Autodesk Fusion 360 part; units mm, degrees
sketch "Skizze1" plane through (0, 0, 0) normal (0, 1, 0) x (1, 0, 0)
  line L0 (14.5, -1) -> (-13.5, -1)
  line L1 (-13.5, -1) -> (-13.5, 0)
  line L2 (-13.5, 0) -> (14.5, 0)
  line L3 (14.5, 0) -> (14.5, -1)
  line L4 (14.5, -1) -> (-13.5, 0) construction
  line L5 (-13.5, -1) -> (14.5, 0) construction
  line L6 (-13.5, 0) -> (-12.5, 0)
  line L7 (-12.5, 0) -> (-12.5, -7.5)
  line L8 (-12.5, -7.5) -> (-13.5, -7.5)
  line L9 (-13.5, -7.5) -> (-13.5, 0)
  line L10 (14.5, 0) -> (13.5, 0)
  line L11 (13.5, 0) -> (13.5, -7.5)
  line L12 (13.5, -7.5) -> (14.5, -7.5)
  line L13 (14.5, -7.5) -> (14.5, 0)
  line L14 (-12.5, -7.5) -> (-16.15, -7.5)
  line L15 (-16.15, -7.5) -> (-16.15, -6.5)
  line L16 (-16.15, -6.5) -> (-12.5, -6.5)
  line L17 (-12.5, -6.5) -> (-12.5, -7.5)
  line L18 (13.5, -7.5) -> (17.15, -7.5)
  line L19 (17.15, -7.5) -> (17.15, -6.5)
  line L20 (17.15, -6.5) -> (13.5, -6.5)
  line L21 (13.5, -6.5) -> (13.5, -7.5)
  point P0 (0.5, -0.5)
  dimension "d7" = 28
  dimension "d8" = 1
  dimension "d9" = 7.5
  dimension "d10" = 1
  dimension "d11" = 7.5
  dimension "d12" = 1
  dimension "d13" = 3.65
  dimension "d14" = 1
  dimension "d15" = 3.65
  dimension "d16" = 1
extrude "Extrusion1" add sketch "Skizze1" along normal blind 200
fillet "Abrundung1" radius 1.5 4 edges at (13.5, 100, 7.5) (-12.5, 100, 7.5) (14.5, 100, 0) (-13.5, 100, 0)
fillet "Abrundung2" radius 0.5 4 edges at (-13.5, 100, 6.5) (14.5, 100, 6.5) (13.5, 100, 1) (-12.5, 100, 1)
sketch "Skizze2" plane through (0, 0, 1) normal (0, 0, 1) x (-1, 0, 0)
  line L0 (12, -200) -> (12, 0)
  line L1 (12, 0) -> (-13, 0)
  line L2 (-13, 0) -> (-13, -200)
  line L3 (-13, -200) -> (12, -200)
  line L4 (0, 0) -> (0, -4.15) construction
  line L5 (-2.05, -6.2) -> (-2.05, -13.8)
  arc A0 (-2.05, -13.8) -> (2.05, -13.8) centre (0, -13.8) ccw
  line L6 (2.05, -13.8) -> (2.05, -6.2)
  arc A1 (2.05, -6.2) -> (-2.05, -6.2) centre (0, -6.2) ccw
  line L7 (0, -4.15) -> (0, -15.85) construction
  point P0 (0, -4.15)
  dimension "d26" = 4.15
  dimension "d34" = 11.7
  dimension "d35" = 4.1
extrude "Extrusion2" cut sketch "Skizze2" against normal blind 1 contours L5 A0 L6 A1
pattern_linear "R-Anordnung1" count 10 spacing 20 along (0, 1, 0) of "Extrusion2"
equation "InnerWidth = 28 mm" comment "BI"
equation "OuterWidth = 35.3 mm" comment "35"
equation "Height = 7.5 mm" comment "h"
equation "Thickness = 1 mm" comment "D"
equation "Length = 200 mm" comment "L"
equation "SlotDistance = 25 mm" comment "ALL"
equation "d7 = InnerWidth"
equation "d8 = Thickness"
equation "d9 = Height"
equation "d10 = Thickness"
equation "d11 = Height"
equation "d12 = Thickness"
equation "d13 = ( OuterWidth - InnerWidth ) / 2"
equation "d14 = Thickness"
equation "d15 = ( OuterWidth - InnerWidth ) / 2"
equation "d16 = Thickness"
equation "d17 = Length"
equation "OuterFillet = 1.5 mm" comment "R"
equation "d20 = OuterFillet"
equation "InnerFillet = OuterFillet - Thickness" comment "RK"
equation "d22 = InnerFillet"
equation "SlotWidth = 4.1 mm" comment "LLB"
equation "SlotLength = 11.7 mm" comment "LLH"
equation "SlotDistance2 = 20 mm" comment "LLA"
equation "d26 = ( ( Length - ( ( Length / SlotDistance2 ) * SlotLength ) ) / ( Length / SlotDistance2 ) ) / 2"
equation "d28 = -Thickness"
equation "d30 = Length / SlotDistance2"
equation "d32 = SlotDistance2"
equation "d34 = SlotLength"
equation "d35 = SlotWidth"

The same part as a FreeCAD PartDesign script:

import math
import FreeCAD as App
import Part
import Sketcher
Q = App.Units.Quantity


def edges_at(feature, points):
    """Names of the edges that pass closest to the given points."""
    edges = feature.Shape.Edges
    near = lambda p: min(range(len(edges)), key=lambda i: edges[i].distToShape(Part.Vertex(*p))[0])
    return sorted({f"Edge{near(p) + 1}" for p in points})

doc = App.newDocument("Part")
body = doc.addObject("PartDesign::Body", "Body")

sketch1 = doc.addObject("Sketcher::SketchObject", "Sketch")
body.addObject(sketch1)
sketch1.AttachmentSupport = (doc.XZ_Plane, [""])
sketch1.MapMode = "FlatFace"
sketch1.addGeometry([
    Part.LineSegment(App.Vector(14.5, 6.5, 0), App.Vector(14.5, 0, 0)),
    Part.LineSegment(App.Vector(14.5, 0, 0), App.Vector(-13.5, 0, 0)),
    Part.LineSegment(App.Vector(-13.5, 0, 0), App.Vector(-13.5, 6.5, 0)),
    Part.LineSegment(App.Vector(-13.5, 6.5, 0), App.Vector(-16.1, 6.5, 0)),
    Part.LineSegment(App.Vector(-16.1, 6.5, 0), App.Vector(-16.1, 7.5, 0)),
    Part.LineSegment(App.Vector(-16.1, 7.5, 0), App.Vector(-12.5, 7.5, 0)),
    Part.LineSegment(App.Vector(-12.5, 7.5, 0), App.Vector(-12.5, 1, 0)),
    Part.LineSegment(App.Vector(-12.5, 1, 0), App.Vector(13.5, 1, 0)),
    Part.LineSegment(App.Vector(13.5, 1, 0), App.Vector(13.5, 7.5, 0)),
    Part.LineSegment(App.Vector(13.5, 7.5, 0), App.Vector(17.1, 7.5, 0)),
    Part.LineSegment(App.Vector(17.1, 7.5, 0), App.Vector(17.1, 6.5, 0)),
    Part.LineSegment(App.Vector(17.1, 6.5, 0), App.Vector(14.5, 6.5, 0)),
], False)
sketch1.addConstraint([
    Sketcher.Constraint("Coincident", 0, 2, 1, 1),
    Sketcher.Constraint("Coincident", 1, 2, 2, 1),
    Sketcher.Constraint("Coincident", 2, 2, 3, 1),
    Sketcher.Constraint("Coincident", 3, 2, 4, 1),
    Sketcher.Constraint("Coincident", 4, 2, 5, 1),
    Sketcher.Constraint("Coincident", 5, 2, 6, 1),
    Sketcher.Constraint("Coincident", 6, 2, 7, 1),
    Sketcher.Constraint("Coincident", 7, 2, 8, 1),
    Sketcher.Constraint("Coincident", 8, 2, 9, 1),
    Sketcher.Constraint("Coincident", 9, 2, 10, 1),
    Sketcher.Constraint("Coincident", 10, 2, 11, 1),
    Sketcher.Constraint("Coincident", 11, 2, 0, 1),
    Sketcher.Constraint("Vertical", 0),
    Sketcher.Constraint("Horizontal", 1),
    Sketcher.Constraint("Vertical", 2),
    Sketcher.Constraint("Horizontal", 3),
    Sketcher.Constraint("Vertical", 4),
    Sketcher.Constraint("Horizontal", 5),
    Sketcher.Constraint("Vertical", 6),
    Sketcher.Constraint("Horizontal", 7),
    Sketcher.Constraint("Vertical", 8),
    Sketcher.Constraint("Horizontal", 9),
    Sketcher.Constraint("Vertical", 10),
    Sketcher.Constraint("Horizontal", 11),
    Sketcher.Constraint("PointOnObject", 0, 2, -1),
    Sketcher.Constraint("Horizontal", 5, 2, 8, 2),
    Sketcher.Constraint("Horizontal", 3, 2, 10, 2),
    Sketcher.Constraint("Equal", 5, 9),
    Sketcher.Constraint("Equal", 3, 11),
    Sketcher.Constraint("Equal", 2, 6),
    Sketcher.Constraint("DistanceX", 1, 2, 1, 1, Q("28 mm")),
    Sketcher.Constraint("DistanceY", 4, 1, 4, 2, Q("1 mm")),
    Sketcher.Constraint("DistanceX", 2, 2, 5, 2, Q("1 mm")),
    Sketcher.Constraint("DistanceX", 5, 1, 5, 2, Q("3.65 mm")),
    Sketcher.Constraint("DistanceY", -1, 1, 4, 2, Q("7.5 mm")),
    Sketcher.Constraint("DistanceX", -1, 1, 0, 2, Q("14.5 mm")),
])
pad1 = doc.addObject("PartDesign::Pad", "Pad")
body.addObject(pad1)
pad1.Profile = sketch1
pad1.Length = 200
pad1.Reversed = True
doc.recompute()

fillet = doc.addObject("PartDesign::Fillet", "Fillet")
body.addObject(fillet)
fillet.Base = (pad1, edges_at(pad1, [
    (13.5, 100, 7.5),
    (-12.5, 100, 7.5),
    (14.5, 100, 0),
    (-13.5, 100, 0),
]))
fillet.Radius = 1.5
doc.recompute()

fillet2 = doc.addObject("PartDesign::Fillet", "Fillet001")
body.addObject(fillet2)
fillet2.Base = (fillet, edges_at(fillet, [
    (-13.5, 100, 6.5),
    (14.5, 100, 6.5),
    (13.5, 100, 1),
    (-12.5, 100, 1),
]))
fillet2.Radius = 0.5

sketch2 = doc.addObject("Sketcher::SketchObject", "Sketch001")
body.addObject(sketch2)
sketch2.AttachmentSupport = (doc.XY_Plane, [""])
sketch2.MapMode = "FlatFace"
sketch2.AttachmentOffset = App.Placement(App.Vector(0, 0, 1), App.Rotation())
sketch2.addGeometry([
    Part.ArcOfCircle(Part.Circle(App.Vector(0, 6.2, 0), App.Vector(0, 0, 1), 2), math.radians(180), math.radians(360)),
    Part.LineSegment(App.Vector(2, 6.2, 0), App.Vector(2, 13.8, 0)),
    Part.ArcOfCircle(Part.Circle(App.Vector(0, 13.8, 0), App.Vector(0, 0, 1), 2), math.radians(0), math.radians(180)),
    Part.LineSegment(App.Vector(-2, 13.8, 0), App.Vector(-2, 6.2, 0)),
], False)
sketch2.addConstraint([
    Sketcher.Constraint("Tangent", 0, 2, 1, 1),
    Sketcher.Constraint("Tangent", 1, 2, 2, 1),
    Sketcher.Constraint("Tangent", 2, 2, 3, 1),
    Sketcher.Constraint("Tangent", 3, 2, 0, 1),
    Sketcher.Constraint("Vertical", 1),
    Sketcher.Constraint("Vertical", 3),
    Sketcher.Constraint("PointOnObject", 0, 3, -2),
    Sketcher.Constraint("Radius", 0, Q("2.05 mm")),
    Sketcher.Constraint("DistanceY", 1, 1, 1, 2, Q("7.6 mm")),
    Sketcher.Constraint("DistanceY", -1, 1, 0, 3, Q("6.2 mm")),
])
pocket1 = doc.addObject("PartDesign::Pocket", "Pocket")
body.addObject(pocket1)
pocket1.Profile = sketch2
pocket1.Length = 1
doc.recompute()

linearpattern = doc.addObject("PartDesign::LinearPattern", "LinearPattern")
body.addObject(linearpattern)
linearpattern.Originals = [pocket1]
linearpattern.Direction = (doc.Y_Axis, [""])
linearpattern.Mode = "offset"
linearpattern.Offset = 20
linearpattern.Occurrences = 10
body.Tip = linearpattern

doc.recompute()
